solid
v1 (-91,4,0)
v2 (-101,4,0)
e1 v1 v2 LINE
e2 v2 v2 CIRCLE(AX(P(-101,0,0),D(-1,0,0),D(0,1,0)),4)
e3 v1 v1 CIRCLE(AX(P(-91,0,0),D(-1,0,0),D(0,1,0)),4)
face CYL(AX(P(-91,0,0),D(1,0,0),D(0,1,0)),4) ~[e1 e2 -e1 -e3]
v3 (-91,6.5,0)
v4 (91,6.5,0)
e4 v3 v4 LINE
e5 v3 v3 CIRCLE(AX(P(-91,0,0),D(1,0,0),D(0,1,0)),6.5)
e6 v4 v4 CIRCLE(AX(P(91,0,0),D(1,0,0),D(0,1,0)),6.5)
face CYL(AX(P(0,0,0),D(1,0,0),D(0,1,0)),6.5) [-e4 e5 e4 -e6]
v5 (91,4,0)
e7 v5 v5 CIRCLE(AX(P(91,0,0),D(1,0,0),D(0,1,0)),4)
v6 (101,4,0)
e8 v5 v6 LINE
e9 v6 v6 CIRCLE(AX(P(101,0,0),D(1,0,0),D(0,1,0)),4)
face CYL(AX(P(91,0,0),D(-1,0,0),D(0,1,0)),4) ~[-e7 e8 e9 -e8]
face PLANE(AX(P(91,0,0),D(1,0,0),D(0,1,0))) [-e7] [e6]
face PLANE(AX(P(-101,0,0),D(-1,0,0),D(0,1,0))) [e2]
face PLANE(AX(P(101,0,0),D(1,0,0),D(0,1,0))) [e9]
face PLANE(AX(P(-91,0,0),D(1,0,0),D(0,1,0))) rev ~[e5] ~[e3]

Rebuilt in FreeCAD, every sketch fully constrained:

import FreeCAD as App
import Part
import Sketcher

doc = App.newDocument("Part")
params = doc.addObject("Spreadsheet::Sheet", "Params")
for row, (alias, value) in enumerate([
    ("sketch1_diameter", "13 mm"),
    ("pad1_length", "182 mm"),
    ("sketch2_diameter", "8 mm"),
    ("pad2_length", "10 mm"),
    ("sketch3_diameter", "8 mm"),
    ("pad3_length", "10 mm"),
], start=1):
    params.set(f"A{row}", alias)
    params.set(f"B{row}", "=" + value)
    params.setAlias(f"B{row}", alias)

body = doc.addObject("PartDesign::Body", "Body")

sketch1 = doc.addObject("Sketcher::SketchObject", "Sketch")
body.addObject(sketch1)
sketch1.AttachmentSupport = (doc.YZ_Plane, [""])
sketch1.MapMode = "FlatFace"
sketch1.addGeometry(Part.Circle(App.Vector(0, 0, 0), App.Vector(0, 0, 1), 6), False)
sketch1.addConstraint(Sketcher.Constraint("Coincident", 0, 3, -1, 1))
sketch1.addConstraint(Sketcher.Constraint("Diameter", 0, 13.0))
sketch1.setExpression("Constraints[1]", "Params.sketch1_diameter")
pad1 = doc.addObject("PartDesign::Pad", "Pad")
body.addObject(pad1)
pad1.Profile = sketch1
pad1.setExpression("Length", "Params.pad1_length")
pad1.Midplane = True

sketch2 = doc.addObject("Sketcher::SketchObject", "Sketch001")
body.addObject(sketch2)
sketch2.AttachmentSupport = (doc.YZ_Plane, [""])
sketch2.MapMode = "FlatFace"
sketch2.AttachmentOffset = App.Placement(App.Vector(0, 0, 91), App.Rotation())
sketch2.addGeometry(Part.Circle(App.Vector(0, 0, 0), App.Vector(0, 0, 1), 4), False)
sketch2.addConstraint(Sketcher.Constraint("Coincident", 0, 3, -1, 1))
sketch2.addConstraint(Sketcher.Constraint("Diameter", 0, 8.0))
sketch2.setExpression("Constraints[1]", "Params.sketch2_diameter")
pad2 = doc.addObject("PartDesign::Pad", "Pad001")
body.addObject(pad2)
pad2.Profile = sketch2
pad2.setExpression("Length", "Params.pad2_length")

sketch3 = doc.addObject("Sketcher::SketchObject", "Sketch002")
body.addObject(sketch3)
sketch3.AttachmentSupport = (doc.YZ_Plane, [""])
sketch3.MapMode = "FlatFace"
sketch3.AttachmentOffset = App.Placement(App.Vector(0, 0, -91), App.Rotation())
sketch3.addGeometry(Part.Circle(App.Vector(0, 0, 0), App.Vector(0, 0, 1), 4), False)
sketch3.addConstraint(Sketcher.Constraint("Coincident", 0, 3, -1, 1))
sketch3.addConstraint(Sketcher.Constraint("Diameter", 0, 8.0))
sketch3.setExpression("Constraints[1]", "Params.sketch3_diameter")
pad3 = doc.addObject("PartDesign::Pad", "Pad002")
body.addObject(pad3)
pad3.Profile = sketch3
pad3.setExpression("Length", "Params.pad3_length")
pad3.Reversed = True

doc.recompute()
